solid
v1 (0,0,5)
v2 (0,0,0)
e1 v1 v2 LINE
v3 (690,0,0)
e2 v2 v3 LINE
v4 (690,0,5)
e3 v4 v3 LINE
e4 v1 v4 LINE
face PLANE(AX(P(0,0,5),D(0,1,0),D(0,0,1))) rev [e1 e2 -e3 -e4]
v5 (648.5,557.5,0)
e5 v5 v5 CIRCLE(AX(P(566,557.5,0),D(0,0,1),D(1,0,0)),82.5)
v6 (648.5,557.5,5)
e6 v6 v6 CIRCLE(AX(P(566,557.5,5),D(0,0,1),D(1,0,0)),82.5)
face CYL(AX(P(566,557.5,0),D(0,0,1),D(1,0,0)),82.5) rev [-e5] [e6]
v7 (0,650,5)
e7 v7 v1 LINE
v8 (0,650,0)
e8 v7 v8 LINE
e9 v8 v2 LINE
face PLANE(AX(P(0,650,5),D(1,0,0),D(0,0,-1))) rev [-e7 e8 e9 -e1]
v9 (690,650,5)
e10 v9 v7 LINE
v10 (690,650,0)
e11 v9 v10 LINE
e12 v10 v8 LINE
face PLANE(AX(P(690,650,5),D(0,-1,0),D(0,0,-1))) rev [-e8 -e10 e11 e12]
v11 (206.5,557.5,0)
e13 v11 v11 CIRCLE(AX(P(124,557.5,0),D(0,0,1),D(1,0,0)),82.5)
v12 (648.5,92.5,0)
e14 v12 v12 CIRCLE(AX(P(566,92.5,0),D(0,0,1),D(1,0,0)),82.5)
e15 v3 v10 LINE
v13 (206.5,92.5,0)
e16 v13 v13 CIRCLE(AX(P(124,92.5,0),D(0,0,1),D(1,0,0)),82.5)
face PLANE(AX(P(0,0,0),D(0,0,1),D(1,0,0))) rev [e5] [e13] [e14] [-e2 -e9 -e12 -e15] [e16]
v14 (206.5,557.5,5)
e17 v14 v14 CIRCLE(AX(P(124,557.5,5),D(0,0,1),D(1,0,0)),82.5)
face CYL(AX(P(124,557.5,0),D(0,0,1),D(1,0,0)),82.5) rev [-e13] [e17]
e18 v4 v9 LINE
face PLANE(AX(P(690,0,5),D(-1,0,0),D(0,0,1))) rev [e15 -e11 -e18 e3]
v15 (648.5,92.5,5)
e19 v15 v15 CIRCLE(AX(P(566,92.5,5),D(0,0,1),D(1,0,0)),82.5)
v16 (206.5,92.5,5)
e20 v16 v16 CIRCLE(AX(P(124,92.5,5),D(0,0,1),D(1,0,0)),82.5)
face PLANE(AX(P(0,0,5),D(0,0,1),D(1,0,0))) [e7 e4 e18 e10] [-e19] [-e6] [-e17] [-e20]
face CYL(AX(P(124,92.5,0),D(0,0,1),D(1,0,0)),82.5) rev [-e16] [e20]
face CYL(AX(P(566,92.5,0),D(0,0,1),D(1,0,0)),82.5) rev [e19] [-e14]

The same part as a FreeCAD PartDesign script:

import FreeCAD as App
import Part
import Sketcher
from FreeCAD import Vector


def add_polygon(sketch, points):
    """Adds a closed chain of lines whose ends are joined by coincident constraints."""
    first, n = sketch.GeometryCount, len(points)
    for a, b in zip(points, points[1:] + points[:1]):
        sketch.addGeometry(Part.LineSegment(App.Vector(*a, 0), App.Vector(*b, 0)), False)
    for i in range(n):
        sketch.addConstraint(Sketcher.Constraint("Coincident", first + i, 2, first + (i + 1) % n, 1))

doc = App.newDocument("Part")
body = doc.addObject("PartDesign::Body", "Body")

# Sketch on XY plane
sketch1 = body.newObject("Sketcher::SketchObject", "Sketch")
sketch1.AttachmentSupport = (doc.getObject("XY_Plane"), [""])
sketch1.MapMode = "FlatFace"
add_polygon(sketch1, [(0, 650), (0, 0), (690, 0), (690, 650)])  # lines 0-3
sketch1.addConstraint(Sketcher.Constraint("Vertical", 0))
sketch1.addConstraint(Sketcher.Constraint("Horizontal", 1))
sketch1.addConstraint(Sketcher.Constraint("Vertical", 2))
sketch1.addConstraint(Sketcher.Constraint("Horizontal", 3))
sketch1.addConstraint(Sketcher.Constraint("Coincident", 0, 2, -1, 1))
sketch1.addConstraint(Sketcher.Constraint("DistanceX", 1, 1, 1, 2, 690.0))
sketch1.addConstraint(Sketcher.Constraint("DistanceY", 0, 2, 0, 1, 650.0))
pad1 = body.newObject("PartDesign::Pad", "Pad")
pad1.Profile = sketch1
pad1.Length = 5

# Sketch on XY plane
sketch2 = body.newObject("Sketcher::SketchObject", "Sketch001")
sketch2.AttachmentSupport = (doc.getObject("XY_Plane"), [""])
sketch2.MapMode = "FlatFace"
sketch2.AttachmentOffset = App.Placement(Vector(0, 0, 5), App.Rotation())
sketch2.addGeometry(Part.Circle(Vector(124, 92.5, 0), Vector(0, 0, 1), 82.5), False)
sketch2.addConstraint(Sketcher.Constraint("Diameter", 0, 165.0))
sketch2.addConstraint(Sketcher.Constraint("DistanceX", -1, 1, 0, 3, 124.0))
sketch2.addConstraint(Sketcher.Constraint("DistanceY", -1, 1, 0, 3, 92.5))
pocket1 = body.newObject("PartDesign::Pocket", "Pocket")
pocket1.Profile = sketch2
pocket1.Type = "ThroughAll"

# Sketch on XY plane
sketch3 = body.newObject("Sketcher::SketchObject", "Sketch002")
sketch3.AttachmentSupport = (doc.getObject("XY_Plane"), [""])
sketch3.MapMode = "FlatFace"
sketch3.AttachmentOffset = App.Placement(Vector(0, 0, 5), App.Rotation())
sketch3.addGeometry(Part.Circle(Vector(124, 557.5, 0), Vector(0, 0, 1), 82.5), False)
sketch3.addConstraint(Sketcher.Constraint("Diameter", 0, 165.0))
sketch3.addConstraint(Sketcher.Constraint("DistanceX", -1, 1, 0, 3, 124.0))
sketch3.addConstraint(Sketcher.Constraint("DistanceY", -1, 1, 0, 3, 557.5))
pocket2 = body.newObject("PartDesign::Pocket", "Pocket001")
pocket2.Profile = sketch3
pocket2.Type = "ThroughAll"

# Sketch on XY plane
sketch4 = body.newObject("Sketcher::SketchObject", "Sketch003")
sketch4.AttachmentSupport = (doc.getObject("XY_Plane"), [""])
sketch4.MapMode = "FlatFace"
sketch4.AttachmentOffset = App.Placement(Vector(0, 0, 5), App.Rotation())
sketch4.addGeometry(Part.Circle(Vector(566, 92.5, 0), Vector(0, 0, 1), 82.5), False)
sketch4.addConstraint(Sketcher.Constraint("Diameter", 0, 165.0))
sketch4.addConstraint(Sketcher.Constraint("DistanceX", -1, 1, 0, 3, 566.0))
sketch4.addConstraint(Sketcher.Constraint("DistanceY", -1, 1, 0, 3, 92.5))
pocket3 = body.newObject("PartDesign::Pocket", "Pocket002")
pocket3.Profile = sketch4
pocket3.Type = "ThroughAll"

# Sketch on XY plane
sketch5 = body.newObject("Sketcher::SketchObject", "Sketch004")
sketch5.AttachmentSupport = (doc.getObject("XY_Plane"), [""])
sketch5.MapMode = "FlatFace"
sketch5.AttachmentOffset = App.Placement(Vector(0, 0, 5), App.Rotation())
sketch5.addGeometry(Part.Circle(Vector(566, 557.5, 0), Vector(0, 0, 1), 82.5), False)
sketch5.addConstraint(Sketcher.Constraint("Diameter", 0, 165.0))
sketch5.addConstraint(Sketcher.Constraint("DistanceX", -1, 1, 0, 3, 566.0))
sketch5.addConstraint(Sketcher.Constraint("DistanceY", -1, 1, 0, 3, 557.5))
pocket4 = body.newObject("PartDesign::Pocket", "Pocket003")
pocket4.Profile = sketch5
pocket4.Type = "ThroughAll"

doc.recompute()
